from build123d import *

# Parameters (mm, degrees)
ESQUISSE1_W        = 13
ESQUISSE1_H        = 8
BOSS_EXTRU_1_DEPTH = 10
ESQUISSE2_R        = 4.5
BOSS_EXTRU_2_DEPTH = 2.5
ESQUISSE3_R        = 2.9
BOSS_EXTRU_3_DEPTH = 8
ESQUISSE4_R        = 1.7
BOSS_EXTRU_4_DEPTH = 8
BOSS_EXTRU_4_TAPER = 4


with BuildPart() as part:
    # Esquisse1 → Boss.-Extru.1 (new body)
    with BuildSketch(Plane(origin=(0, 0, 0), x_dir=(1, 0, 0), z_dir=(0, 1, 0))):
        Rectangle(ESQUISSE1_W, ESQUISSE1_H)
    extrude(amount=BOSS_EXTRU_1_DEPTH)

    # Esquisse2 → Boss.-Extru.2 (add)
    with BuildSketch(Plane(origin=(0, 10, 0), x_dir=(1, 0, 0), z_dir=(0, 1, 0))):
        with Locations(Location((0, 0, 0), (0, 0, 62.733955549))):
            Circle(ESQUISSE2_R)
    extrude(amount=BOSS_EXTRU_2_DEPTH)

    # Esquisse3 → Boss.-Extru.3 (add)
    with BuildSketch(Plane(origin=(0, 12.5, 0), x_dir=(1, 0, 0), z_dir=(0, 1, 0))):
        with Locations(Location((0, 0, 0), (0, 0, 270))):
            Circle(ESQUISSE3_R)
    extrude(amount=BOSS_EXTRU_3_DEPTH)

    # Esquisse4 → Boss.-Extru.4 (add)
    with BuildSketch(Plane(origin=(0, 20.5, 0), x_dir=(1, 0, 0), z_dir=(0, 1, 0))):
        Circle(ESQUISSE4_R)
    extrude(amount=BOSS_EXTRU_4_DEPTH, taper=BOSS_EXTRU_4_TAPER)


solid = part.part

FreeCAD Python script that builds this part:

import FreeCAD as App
import Part
import Sketcher

V = App.Vector
Q = App.Units.Quantity


def add_polygon(sketch, points):
    """Adds a closed chain of lines whose ends are joined by coincident constraints."""
    first, n = sketch.GeometryCount, len(points)
    for a, b in zip(points, points[1:] + points[:1]):
        sketch.addGeometry(Part.LineSegment(App.Vector(*a, 0), App.Vector(*b, 0)), False)
    for i in range(n):
        sketch.addConstraint(Sketcher.Constraint("Coincident", first + i, 2, first + (i + 1) % n, 1))

doc = App.newDocument("Part")
body = doc.addObject("PartDesign::Body", "Body")

# Sketch on XZ plane
sketch1 = body.newObject("Sketcher::SketchObject", "Sketch")
sketch1.AttachmentSupport = (doc.getObject("XZ_Plane"), [""])
sketch1.MapMode = "FlatFace"
add_polygon(sketch1, [(-6.5, -4), (-6.5, 4), (6.5, 4), (6.5, -4)])  # lines 0-3
sketch1.addConstraint([
    Sketcher.Constraint("Vertical", 0),
    Sketcher.Constraint("Horizontal", 1),
    Sketcher.Constraint("Vertical", 2),
    Sketcher.Constraint("Horizontal", 3),
    Sketcher.Constraint("Symmetric", 0, 2, 2, 2, -1, 1),
    Sketcher.Constraint("DistanceX", 1, 1, 1, 2, Q("13 mm")),
    Sketcher.Constraint("DistanceY", 0, 1, 0, 2, Q("8 mm")),
])
pad1 = body.newObject("PartDesign::Pad", "Pad")
pad1.Profile = sketch1
pad1.Length = 10
pad1.Reversed = True

# Sketch on XZ plane
sketch2 = body.newObject("Sketcher::SketchObject", "Sketch001")
sketch2.AttachmentSupport = (doc.getObject("XZ_Plane"), [""])
sketch2.MapMode = "FlatFace"
sketch2.AttachmentOffset = App.Placement(V(0, 0, -10), App.Rotation())
sketch2.addGeometry(Part.Circle(V(0, 0, 0), V(0, 0, 1), 4.5), False)
sketch2.addConstraint([
    Sketcher.Constraint("Coincident", 0, 3, -1, 1),
    Sketcher.Constraint("Diameter", 0, Q("9 mm")),
])
pad2 = body.newObject("PartDesign::Pad", "Pad001")
pad2.Profile = sketch2
pad2.Length = 2.5
pad2.Reversed = True

# Sketch on XZ plane
sketch3 = body.newObject("Sketcher::SketchObject", "Sketch002")
sketch3.AttachmentSupport = (doc.getObject("XZ_Plane"), [""])
sketch3.MapMode = "FlatFace"
sketch3.AttachmentOffset = App.Placement(V(0, 0, -12.5), App.Rotation())
sketch3.addGeometry(Part.Circle(V(0, 0, 0), V(0, 0, 1), 2.9), False)
sketch3.addConstraint([
    Sketcher.Constraint("Coincident", 0, 3, -1, 1),
    Sketcher.Constraint("Diameter", 0, Q("5.8 mm")),
])
pad3 = body.newObject("PartDesign::Pad", "Pad002")
pad3.Profile = sketch3
pad3.Length = 8
pad3.Reversed = True

# Sketch on XZ plane
sketch4 = body.newObject("Sketcher::SketchObject", "Sketch003")
sketch4.AttachmentSupport = (doc.getObject("XZ_Plane"), [""])
sketch4.MapMode = "FlatFace"
sketch4.AttachmentOffset = App.Placement(V(0, 0, -20.5), App.Rotation())
sketch4.addGeometry(Part.Circle(V(0, 0, 0), V(0, 0, 1), 1.7), False)
sketch4.addConstraint([
    Sketcher.Constraint("Coincident", 0, 3, -1, 1),
    Sketcher.Constraint("Diameter", 0, Q("3.4 mm")),
])
pad4 = body.newObject("PartDesign::Pad", "Pad003")
pad4.Profile = sketch4
pad4.Length = 8
pad4.Reversed = True
pad4.TaperAngle = -4

doc.recompute()
